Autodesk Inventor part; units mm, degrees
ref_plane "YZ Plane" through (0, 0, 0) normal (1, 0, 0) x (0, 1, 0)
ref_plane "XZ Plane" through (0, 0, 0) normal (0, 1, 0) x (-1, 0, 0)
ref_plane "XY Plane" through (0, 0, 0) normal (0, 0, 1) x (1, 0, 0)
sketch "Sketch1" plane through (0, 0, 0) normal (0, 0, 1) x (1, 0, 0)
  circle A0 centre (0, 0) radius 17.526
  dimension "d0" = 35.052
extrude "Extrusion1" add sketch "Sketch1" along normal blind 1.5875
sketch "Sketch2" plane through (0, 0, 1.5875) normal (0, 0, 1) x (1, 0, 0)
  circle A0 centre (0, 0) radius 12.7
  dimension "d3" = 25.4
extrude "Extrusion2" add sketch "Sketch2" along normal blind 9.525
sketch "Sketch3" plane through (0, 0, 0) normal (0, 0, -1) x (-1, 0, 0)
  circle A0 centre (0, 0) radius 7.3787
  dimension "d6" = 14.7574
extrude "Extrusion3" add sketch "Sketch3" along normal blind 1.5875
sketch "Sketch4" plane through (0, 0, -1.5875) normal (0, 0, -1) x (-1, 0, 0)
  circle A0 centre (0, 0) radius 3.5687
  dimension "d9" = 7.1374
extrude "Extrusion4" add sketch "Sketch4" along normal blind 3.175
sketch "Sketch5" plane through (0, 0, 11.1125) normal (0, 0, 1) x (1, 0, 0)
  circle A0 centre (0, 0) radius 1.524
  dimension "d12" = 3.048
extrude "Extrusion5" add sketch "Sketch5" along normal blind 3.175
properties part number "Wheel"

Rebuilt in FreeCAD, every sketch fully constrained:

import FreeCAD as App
import Part
import Sketcher

V = App.Vector
Q = App.Units.Quantity

doc = App.newDocument("Part")
params = doc.addObject("Spreadsheet::Sheet", "Params")
for row, (alias, value) in enumerate([
    ("sketch1_diameter", "1.38 in"),
    ("pad1_length", "0.0625 in"),
    ("sketch2_diameter", "1 in"),
    ("pad2_length", "0.375 in"),
    ("sketch3_diameter", "0.581 in"),
    ("pad3_length", "0.0625 in"),
    ("sketch4_diameter", "0.281 in"),
    ("pad4_length", "0.125 in"),
    ("sketch5_diameter", "0.12 in"),
    ("pad5_length", "0.125 in"),
], start=1):
    params.set(f"A{row}", alias)
    params.set(f"B{row}", "=" + value)
    params.setAlias(f"B{row}", alias)

body = doc.addObject("PartDesign::Body", "Body")

# Sketch on XY plane
sketch1 = body.newObject("Sketcher::SketchObject", "Sketch")
sketch1.AttachmentSupport = (doc.getObject("XY_Plane"), [""])
sketch1.MapMode = "FlatFace"
sketch1.addGeometry(Part.Circle(V(0, 0, 0), V(0, 0, 1), 18), False)
sketch1.addConstraint([
    Sketcher.Constraint("Coincident", 0, 3, -1, 1),
    Sketcher.Constraint("Diameter", 0, Q("1.38 in")),
])
sketch1.setExpression("Constraints[1]", "Params.sketch1_diameter")
pad1 = body.newObject("PartDesign::Pad", "Pad")
pad1.Profile = sketch1
pad1.setExpression("Length", "Params.pad1_length")

# Sketch on XY plane
sketch2 = body.newObject("Sketcher::SketchObject", "Sketch001")
sketch2.AttachmentSupport = (doc.getObject("XY_Plane"), [""])
sketch2.MapMode = "FlatFace"
sketch2.AttachmentOffset = App.Placement(V(0, 0, 0.0625 * 25.4), App.Rotation())
sketch2.addGeometry(Part.Circle(V(0, 0, 0), V(0, 0, 1), 13), False)
sketch2.addConstraint([
    Sketcher.Constraint("Coincident", 0, 3, -1, 1),
    Sketcher.Constraint("Diameter", 0, Q("1 in")),
])
sketch2.setExpression("Constraints[1]", "Params.sketch2_diameter")
pad2 = body.newObject("PartDesign::Pad", "Pad001")
pad2.Profile = sketch2
pad2.setExpression("Length", "Params.pad2_length")

# Sketch on XY plane
sketch3 = body.newObject("Sketcher::SketchObject", "Sketch002")
sketch3.AttachmentSupport = (doc.getObject("XY_Plane"), [""])
sketch3.MapMode = "FlatFace"
sketch3.addGeometry(Part.Circle(V(0, 0, 0), V(0, 0, 1), 7), False)
sketch3.addConstraint([
    Sketcher.Constraint("Coincident", 0, 3, -1, 1),
    Sketcher.Constraint("Diameter", 0, Q("0.581 in")),
])
sketch3.setExpression("Constraints[1]", "Params.sketch3_diameter")
pad3 = body.newObject("PartDesign::Pad", "Pad002")
pad3.Profile = sketch3
pad3.setExpression("Length", "Params.pad3_length")
pad3.Reversed = True

# Sketch on XY plane
sketch4 = body.newObject("Sketcher::SketchObject", "Sketch003")
sketch4.AttachmentSupport = (doc.getObject("XY_Plane"), [""])
sketch4.MapMode = "FlatFace"
sketch4.AttachmentOffset = App.Placement(V(0, 0, -0.0625 * 25.4), App.Rotation())
sketch4.addGeometry(Part.Circle(V(0, 0, 0), V(0, 0, 1), 3.6), False)
sketch4.addConstraint([
    Sketcher.Constraint("Coincident", 0, 3, -1, 1),
    Sketcher.Constraint("Diameter", 0, Q("0.281 in")),
])
sketch4.setExpression("Constraints[1]", "Params.sketch4_diameter")
pad4 = body.newObject("PartDesign::Pad", "Pad003")
pad4.Profile = sketch4
pad4.setExpression("Length", "Params.pad4_length")
pad4.Reversed = True

# Sketch on XY plane
sketch5 = body.newObject("Sketcher::SketchObject", "Sketch004")
sketch5.AttachmentSupport = (doc.getObject("XY_Plane"), [""])
sketch5.MapMode = "FlatFace"
sketch5.AttachmentOffset = App.Placement(V(0, 0, 0.4375 * 25.4), App.Rotation())
sketch5.addGeometry(Part.Circle(V(0, 0, 0), V(0, 0, 1), 1.5), False)
sketch5.addConstraint([
    Sketcher.Constraint("Coincident", 0, 3, -1, 1),
    Sketcher.Constraint("Diameter", 0, Q("0.12 in")),
])
sketch5.setExpression("Constraints[1]", "Params.sketch5_diameter")
pad5 = body.newObject("PartDesign::Pad", "Pad004")
pad5.Profile = sketch5
pad5.setExpression("Length", "Params.pad5_length")

doc.recompute()
